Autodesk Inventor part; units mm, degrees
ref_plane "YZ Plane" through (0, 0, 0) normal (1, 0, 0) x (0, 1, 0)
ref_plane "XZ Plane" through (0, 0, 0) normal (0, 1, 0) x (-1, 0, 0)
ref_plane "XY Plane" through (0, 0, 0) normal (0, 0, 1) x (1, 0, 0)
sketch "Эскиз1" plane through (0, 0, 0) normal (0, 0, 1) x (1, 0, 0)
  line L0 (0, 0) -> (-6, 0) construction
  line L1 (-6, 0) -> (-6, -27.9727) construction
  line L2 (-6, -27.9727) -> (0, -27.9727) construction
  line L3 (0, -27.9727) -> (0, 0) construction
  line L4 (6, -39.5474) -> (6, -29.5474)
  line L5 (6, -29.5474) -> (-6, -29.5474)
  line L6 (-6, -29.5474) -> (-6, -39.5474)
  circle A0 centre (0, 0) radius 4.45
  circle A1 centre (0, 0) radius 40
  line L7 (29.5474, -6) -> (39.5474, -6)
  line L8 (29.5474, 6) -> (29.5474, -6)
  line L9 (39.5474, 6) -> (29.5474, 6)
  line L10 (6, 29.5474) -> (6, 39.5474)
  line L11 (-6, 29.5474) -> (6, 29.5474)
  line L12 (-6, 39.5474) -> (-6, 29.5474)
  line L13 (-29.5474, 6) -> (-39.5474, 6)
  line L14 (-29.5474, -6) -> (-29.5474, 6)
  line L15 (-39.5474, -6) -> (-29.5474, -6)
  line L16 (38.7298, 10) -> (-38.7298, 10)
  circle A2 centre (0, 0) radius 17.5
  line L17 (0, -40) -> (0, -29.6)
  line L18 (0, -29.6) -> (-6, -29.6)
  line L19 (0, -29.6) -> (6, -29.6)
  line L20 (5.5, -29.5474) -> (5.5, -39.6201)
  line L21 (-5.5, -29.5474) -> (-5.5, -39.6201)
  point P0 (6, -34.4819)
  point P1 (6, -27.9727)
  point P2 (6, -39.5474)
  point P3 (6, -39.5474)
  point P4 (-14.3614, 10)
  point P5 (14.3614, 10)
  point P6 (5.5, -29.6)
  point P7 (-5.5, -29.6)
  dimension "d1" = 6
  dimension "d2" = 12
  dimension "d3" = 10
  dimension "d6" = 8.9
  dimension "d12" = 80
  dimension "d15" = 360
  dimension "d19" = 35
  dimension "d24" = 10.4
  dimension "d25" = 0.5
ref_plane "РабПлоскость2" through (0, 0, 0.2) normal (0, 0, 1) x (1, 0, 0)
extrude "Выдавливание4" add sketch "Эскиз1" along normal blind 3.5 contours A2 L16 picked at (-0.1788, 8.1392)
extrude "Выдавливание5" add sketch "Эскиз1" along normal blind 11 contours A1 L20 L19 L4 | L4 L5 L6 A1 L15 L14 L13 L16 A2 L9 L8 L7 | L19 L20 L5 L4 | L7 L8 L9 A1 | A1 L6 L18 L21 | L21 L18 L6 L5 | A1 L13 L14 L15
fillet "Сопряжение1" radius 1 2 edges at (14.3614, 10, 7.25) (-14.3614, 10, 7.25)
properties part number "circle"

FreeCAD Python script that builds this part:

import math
import FreeCAD as App
import Part
import Sketcher

V = App.Vector


def edges_at(feature, points):
    """Names of the edges that pass closest to the given points."""
    edges = feature.Shape.Edges
    near = lambda p: min(range(len(edges)), key=lambda i: edges[i].distToShape(Part.Vertex(*p))[0])
    return sorted({f"Edge{near(p) + 1}" for p in points})

doc = App.newDocument("Part")
params = doc.addObject("Spreadsheet::Sheet", "Params")
for row, (alias, value) in enumerate([
    ("sketch1_diameter", "8.9 mm"),
    ("sketch1_radius", "17.5 mm"),
    ("pad1_length", "3.5 mm"),
    ("sketch2_radius", "40 mm"),
    ("sketch2_radius2", "17.5 mm"),
    ("sketch2_width", "11 mm"),
    ("pad2_length", "11 mm"),
    ("fillet_radius", "1 mm"),
], start=1):
    params.set(f"A{row}", alias)
    params.set(f"B{row}", "=" + value)
    params.setAlias(f"B{row}", alias)

body = doc.addObject("PartDesign::Body", "Body")

sketch1 = body.newObject("Sketcher::SketchObject", "Sketch")
sketch1.AttachmentSupport = (doc.getObject("XY_Plane"), [""])
sketch1.MapMode = "FlatFace"
sketch1.addGeometry(Part.ArcOfCircle(Part.Circle(V(0, 0, 0), V(0, 0, 1), 17.5), math.radians(145.150095), math.radians(394.849905)), False)
sketch1.addGeometry(Part.LineSegment(V(14.361407, 10, 0), V(-14.361407, 10, 0)), False)
sketch1.addGeometry(Part.Circle(V(0, 0, 0), V(0, 0, 1), 4.45), False)
sketch1.addConstraint(Sketcher.Constraint("Coincident", 0, 1, 1, 2))
sketch1.addConstraint(Sketcher.Constraint("Coincident", 1, 1, 0, 2))
sketch1.addConstraint(Sketcher.Constraint("Horizontal", 1))
sketch1.addConstraint(Sketcher.Constraint("Coincident", 0, 3, -1, 1))
sketch1.addConstraint(Sketcher.Constraint("Coincident", 2, 3, -1, 1))
sketch1.addConstraint(Sketcher.Constraint("Diameter", 2, 8.9))
sketch1.addConstraint(Sketcher.Constraint("Radius", 0, 17.5))
sketch1.addConstraint(Sketcher.Constraint("DistanceY", -1, 1, 0, 1, 10.0))
sketch1.setExpression("Constraints[5]", "Params.sketch1_diameter")
sketch1.setExpression("Constraints[6]", "Params.sketch1_radius")
pad1 = body.newObject("PartDesign::Pad", "Pad")
pad1.Profile = sketch1
pad1.setExpression("Length", "Params.pad1_length")

sketch2 = body.newObject("Sketcher::SketchObject", "Sketch001")
sketch2.AttachmentSupport = (doc.getObject("XY_Plane"), [""])
sketch2.MapMode = "FlatFace"
sketch2.addGeometry(Part.ArcOfCircle(Part.Circle(V(0, 0, 0), V(0, 0, 1), 40), math.radians(-82.096798), math.radians(14.477524)), False)
sketch2.addGeometry(Part.LineSegment(V(38.7298, 10, 0), V(14.361407, 10, 0)), False)
sketch2.addGeometry(Part.ArcOfCircle(Part.Circle(V(0, 0, 0), V(0, 0, 1), 17.5), math.radians(145.150095), math.radians(394.849905)), False)
sketch2.addGeometry(Part.LineSegment(V(-14.361407, 10, 0), V(-38.7298, 10, 0)), False)
sketch2.addGeometry(Part.ArcOfCircle(Part.Circle(V(0, 0, 0), V(0, 0, 1), 40), math.radians(165.522476), math.radians(262.096798)), False)
sketch2.addGeometry(Part.LineSegment(V(-5.5, -39.6201, 0), V(-5.5, -29.5474, 0)), False)
sketch2.addGeometry(Part.LineSegment(V(-5.5, -29.5474, 0), V(5.5, -29.5474, 0)), False)
sketch2.addGeometry(Part.LineSegment(V(5.5, -29.5474, 0), V(5.5, -39.6201, 0)), False)
sketch2.addConstraint(Sketcher.Constraint("Coincident", 0, 2, 1, 1))
sketch2.addConstraint(Sketcher.Constraint("Coincident", 1, 2, 2, 2))
sketch2.addConstraint(Sketcher.Constraint("Coincident", 2, 1, 3, 1))
sketch2.addConstraint(Sketcher.Constraint("Coincident", 3, 2, 4, 1))
sketch2.addConstraint(Sketcher.Constraint("Coincident", 4, 2, 5, 1))
sketch2.addConstraint(Sketcher.Constraint("Coincident", 5, 2, 6, 1))
sketch2.addConstraint(Sketcher.Constraint("Coincident", 6, 2, 7, 1))
sketch2.addConstraint(Sketcher.Constraint("Coincident", 7, 2, 0, 1))
sketch2.addConstraint(Sketcher.Constraint("Horizontal", 1))
sketch2.addConstraint(Sketcher.Constraint("Horizontal", 3))
sketch2.addConstraint(Sketcher.Constraint("Vertical", 5))
sketch2.addConstraint(Sketcher.Constraint("Horizontal", 6))
sketch2.addConstraint(Sketcher.Constraint("Vertical", 7))
sketch2.addConstraint(Sketcher.Constraint("Coincident", 0, 3, -1, 1))
sketch2.addConstraint(Sketcher.Constraint("Coincident", 2, 3, -1, 1))
sketch2.addConstraint(Sketcher.Constraint("Coincident", 4, 3, -1, 1))
sketch2.addConstraint(Sketcher.Constraint("Equal", 0, 4))
sketch2.addConstraint(Sketcher.Constraint("Horizontal", 1, 2, 2, 1))
sketch2.addConstraint(Sketcher.Constraint("Horizontal", 4, 2, 7, 2))
sketch2.addConstraint(Sketcher.Constraint("Radius", 0, 40.0))
sketch2.addConstraint(Sketcher.Constraint("Radius", 2, 17.5))
sketch2.addConstraint(Sketcher.Constraint("DistanceY", -1, 1, 0, 2, 10.0))
sketch2.addConstraint(Sketcher.Constraint("DistanceX", 6, 1, 6, 2, 11.0))
sketch2.addConstraint(Sketcher.Constraint("DistanceY", 5, 1, 5, 2, 10.0727))
sketch2.setExpression("Constraints[19]", "Params.sketch2_radius")
sketch2.setExpression("Constraints[20]", "Params.sketch2_radius2")
sketch2.setExpression("Constraints[22]", "Params.sketch2_width")
pad2 = body.newObject("PartDesign::Pad", "Pad001")
pad2.Profile = sketch2
pad2.setExpression("Length", "Params.pad2_length")
doc.recompute()

fillet = body.newObject("PartDesign::Fillet", "Fillet")
fillet.Base = (pad2, edges_at(pad2, [(14.361, 10, 7.25), (-14.361, 10, 7.25)]))
fillet.setExpression("Radius", "Params.fillet_radius")

doc.recompute()
